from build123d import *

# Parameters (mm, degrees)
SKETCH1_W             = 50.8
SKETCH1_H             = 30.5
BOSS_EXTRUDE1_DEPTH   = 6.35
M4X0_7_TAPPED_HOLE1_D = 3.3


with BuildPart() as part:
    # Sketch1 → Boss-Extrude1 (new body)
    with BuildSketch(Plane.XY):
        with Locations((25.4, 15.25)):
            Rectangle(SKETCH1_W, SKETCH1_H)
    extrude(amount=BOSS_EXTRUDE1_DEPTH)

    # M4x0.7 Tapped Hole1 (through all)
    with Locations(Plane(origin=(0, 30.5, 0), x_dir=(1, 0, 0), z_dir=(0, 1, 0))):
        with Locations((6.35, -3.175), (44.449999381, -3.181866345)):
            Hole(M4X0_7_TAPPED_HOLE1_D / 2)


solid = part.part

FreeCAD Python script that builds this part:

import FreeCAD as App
import Part
import Sketcher

V = App.Vector


def add_polygon(sketch, points):
    """Adds a closed chain of lines whose ends are joined by coincident constraints."""
    first, n = sketch.GeometryCount, len(points)
    for a, b in zip(points, points[1:] + points[:1]):
        sketch.addGeometry(Part.LineSegment(App.Vector(*a, 0), App.Vector(*b, 0)), False)
    for i in range(n):
        sketch.addConstraint(Sketcher.Constraint("Coincident", first + i, 2, first + (i + 1) % n, 1))

doc = App.newDocument("Part")
body = doc.addObject("PartDesign::Body", "Body")

sketch1 = body.newObject("Sketcher::SketchObject", "Sketch")
sketch1.AttachmentSupport = (doc.getObject("XY_Plane"), [""])
sketch1.MapMode = "FlatFace"
add_polygon(sketch1, [(0, 30), (0, 0), (51, 0), (51, 30)])
sketch1.addConstraint(Sketcher.Constraint("Vertical", 0))
sketch1.addConstraint(Sketcher.Constraint("Horizontal", 1))
sketch1.addConstraint(Sketcher.Constraint("Vertical", 2))
sketch1.addConstraint(Sketcher.Constraint("Horizontal", 3))
sketch1.addConstraint(Sketcher.Constraint("Coincident", 0, 2, -1, 1))
sketch1.addConstraint(Sketcher.Constraint("DistanceX", 1, 1, 1, 2, 50.8))
sketch1.addConstraint(Sketcher.Constraint("DistanceY", 0, 2, 0, 1, 30.5))
pad1 = body.newObject("PartDesign::Pad", "Pad")
pad1.Profile = sketch1
pad1.Length = 6.35

sketch2 = body.newObject("Sketcher::SketchObject", "Sketch001")
sketch2.AttachmentSupport = (doc.getObject("XZ_Plane"), [""])
sketch2.MapMode = "FlatFace"
sketch2.AttachmentOffset = App.Placement(V(0, 0, -30.5), App.Rotation())
sketch2.addGeometry(Part.Circle(V(6.3, 3.2, 0), V(0, 0, 1), 1.6), False)
sketch2.addGeometry(Part.Circle(V(44.4, 3.2, 0), V(0, 0, 1), 1.6), False)
sketch2.addConstraint(Sketcher.Constraint("Equal", 0, 1))
sketch2.addConstraint(Sketcher.Constraint("Diameter", 0, 3.3))
sketch2.addConstraint(Sketcher.Constraint("DistanceX", 0, 3, 1, 3, 38.099999))
sketch2.addConstraint(Sketcher.Constraint("DistanceX", -1, 1, 0, 3, 6.35))
sketch2.addConstraint(Sketcher.Constraint("DistanceY", -1, 1, 0, 3, 3.175))
sketch2.addConstraint(Sketcher.Constraint("DistanceY", -1, 1, 1, 3, 3.181866))
doc.recompute()
hole = body.newObject("PartDesign::Hole", "Hole")
hole.Profile = sketch2
hole.ThreadType = "None"
hole.Diameter = 3.3
hole.DepthType = "ThroughAll"
hole.Reversed = True

doc.recompute()
